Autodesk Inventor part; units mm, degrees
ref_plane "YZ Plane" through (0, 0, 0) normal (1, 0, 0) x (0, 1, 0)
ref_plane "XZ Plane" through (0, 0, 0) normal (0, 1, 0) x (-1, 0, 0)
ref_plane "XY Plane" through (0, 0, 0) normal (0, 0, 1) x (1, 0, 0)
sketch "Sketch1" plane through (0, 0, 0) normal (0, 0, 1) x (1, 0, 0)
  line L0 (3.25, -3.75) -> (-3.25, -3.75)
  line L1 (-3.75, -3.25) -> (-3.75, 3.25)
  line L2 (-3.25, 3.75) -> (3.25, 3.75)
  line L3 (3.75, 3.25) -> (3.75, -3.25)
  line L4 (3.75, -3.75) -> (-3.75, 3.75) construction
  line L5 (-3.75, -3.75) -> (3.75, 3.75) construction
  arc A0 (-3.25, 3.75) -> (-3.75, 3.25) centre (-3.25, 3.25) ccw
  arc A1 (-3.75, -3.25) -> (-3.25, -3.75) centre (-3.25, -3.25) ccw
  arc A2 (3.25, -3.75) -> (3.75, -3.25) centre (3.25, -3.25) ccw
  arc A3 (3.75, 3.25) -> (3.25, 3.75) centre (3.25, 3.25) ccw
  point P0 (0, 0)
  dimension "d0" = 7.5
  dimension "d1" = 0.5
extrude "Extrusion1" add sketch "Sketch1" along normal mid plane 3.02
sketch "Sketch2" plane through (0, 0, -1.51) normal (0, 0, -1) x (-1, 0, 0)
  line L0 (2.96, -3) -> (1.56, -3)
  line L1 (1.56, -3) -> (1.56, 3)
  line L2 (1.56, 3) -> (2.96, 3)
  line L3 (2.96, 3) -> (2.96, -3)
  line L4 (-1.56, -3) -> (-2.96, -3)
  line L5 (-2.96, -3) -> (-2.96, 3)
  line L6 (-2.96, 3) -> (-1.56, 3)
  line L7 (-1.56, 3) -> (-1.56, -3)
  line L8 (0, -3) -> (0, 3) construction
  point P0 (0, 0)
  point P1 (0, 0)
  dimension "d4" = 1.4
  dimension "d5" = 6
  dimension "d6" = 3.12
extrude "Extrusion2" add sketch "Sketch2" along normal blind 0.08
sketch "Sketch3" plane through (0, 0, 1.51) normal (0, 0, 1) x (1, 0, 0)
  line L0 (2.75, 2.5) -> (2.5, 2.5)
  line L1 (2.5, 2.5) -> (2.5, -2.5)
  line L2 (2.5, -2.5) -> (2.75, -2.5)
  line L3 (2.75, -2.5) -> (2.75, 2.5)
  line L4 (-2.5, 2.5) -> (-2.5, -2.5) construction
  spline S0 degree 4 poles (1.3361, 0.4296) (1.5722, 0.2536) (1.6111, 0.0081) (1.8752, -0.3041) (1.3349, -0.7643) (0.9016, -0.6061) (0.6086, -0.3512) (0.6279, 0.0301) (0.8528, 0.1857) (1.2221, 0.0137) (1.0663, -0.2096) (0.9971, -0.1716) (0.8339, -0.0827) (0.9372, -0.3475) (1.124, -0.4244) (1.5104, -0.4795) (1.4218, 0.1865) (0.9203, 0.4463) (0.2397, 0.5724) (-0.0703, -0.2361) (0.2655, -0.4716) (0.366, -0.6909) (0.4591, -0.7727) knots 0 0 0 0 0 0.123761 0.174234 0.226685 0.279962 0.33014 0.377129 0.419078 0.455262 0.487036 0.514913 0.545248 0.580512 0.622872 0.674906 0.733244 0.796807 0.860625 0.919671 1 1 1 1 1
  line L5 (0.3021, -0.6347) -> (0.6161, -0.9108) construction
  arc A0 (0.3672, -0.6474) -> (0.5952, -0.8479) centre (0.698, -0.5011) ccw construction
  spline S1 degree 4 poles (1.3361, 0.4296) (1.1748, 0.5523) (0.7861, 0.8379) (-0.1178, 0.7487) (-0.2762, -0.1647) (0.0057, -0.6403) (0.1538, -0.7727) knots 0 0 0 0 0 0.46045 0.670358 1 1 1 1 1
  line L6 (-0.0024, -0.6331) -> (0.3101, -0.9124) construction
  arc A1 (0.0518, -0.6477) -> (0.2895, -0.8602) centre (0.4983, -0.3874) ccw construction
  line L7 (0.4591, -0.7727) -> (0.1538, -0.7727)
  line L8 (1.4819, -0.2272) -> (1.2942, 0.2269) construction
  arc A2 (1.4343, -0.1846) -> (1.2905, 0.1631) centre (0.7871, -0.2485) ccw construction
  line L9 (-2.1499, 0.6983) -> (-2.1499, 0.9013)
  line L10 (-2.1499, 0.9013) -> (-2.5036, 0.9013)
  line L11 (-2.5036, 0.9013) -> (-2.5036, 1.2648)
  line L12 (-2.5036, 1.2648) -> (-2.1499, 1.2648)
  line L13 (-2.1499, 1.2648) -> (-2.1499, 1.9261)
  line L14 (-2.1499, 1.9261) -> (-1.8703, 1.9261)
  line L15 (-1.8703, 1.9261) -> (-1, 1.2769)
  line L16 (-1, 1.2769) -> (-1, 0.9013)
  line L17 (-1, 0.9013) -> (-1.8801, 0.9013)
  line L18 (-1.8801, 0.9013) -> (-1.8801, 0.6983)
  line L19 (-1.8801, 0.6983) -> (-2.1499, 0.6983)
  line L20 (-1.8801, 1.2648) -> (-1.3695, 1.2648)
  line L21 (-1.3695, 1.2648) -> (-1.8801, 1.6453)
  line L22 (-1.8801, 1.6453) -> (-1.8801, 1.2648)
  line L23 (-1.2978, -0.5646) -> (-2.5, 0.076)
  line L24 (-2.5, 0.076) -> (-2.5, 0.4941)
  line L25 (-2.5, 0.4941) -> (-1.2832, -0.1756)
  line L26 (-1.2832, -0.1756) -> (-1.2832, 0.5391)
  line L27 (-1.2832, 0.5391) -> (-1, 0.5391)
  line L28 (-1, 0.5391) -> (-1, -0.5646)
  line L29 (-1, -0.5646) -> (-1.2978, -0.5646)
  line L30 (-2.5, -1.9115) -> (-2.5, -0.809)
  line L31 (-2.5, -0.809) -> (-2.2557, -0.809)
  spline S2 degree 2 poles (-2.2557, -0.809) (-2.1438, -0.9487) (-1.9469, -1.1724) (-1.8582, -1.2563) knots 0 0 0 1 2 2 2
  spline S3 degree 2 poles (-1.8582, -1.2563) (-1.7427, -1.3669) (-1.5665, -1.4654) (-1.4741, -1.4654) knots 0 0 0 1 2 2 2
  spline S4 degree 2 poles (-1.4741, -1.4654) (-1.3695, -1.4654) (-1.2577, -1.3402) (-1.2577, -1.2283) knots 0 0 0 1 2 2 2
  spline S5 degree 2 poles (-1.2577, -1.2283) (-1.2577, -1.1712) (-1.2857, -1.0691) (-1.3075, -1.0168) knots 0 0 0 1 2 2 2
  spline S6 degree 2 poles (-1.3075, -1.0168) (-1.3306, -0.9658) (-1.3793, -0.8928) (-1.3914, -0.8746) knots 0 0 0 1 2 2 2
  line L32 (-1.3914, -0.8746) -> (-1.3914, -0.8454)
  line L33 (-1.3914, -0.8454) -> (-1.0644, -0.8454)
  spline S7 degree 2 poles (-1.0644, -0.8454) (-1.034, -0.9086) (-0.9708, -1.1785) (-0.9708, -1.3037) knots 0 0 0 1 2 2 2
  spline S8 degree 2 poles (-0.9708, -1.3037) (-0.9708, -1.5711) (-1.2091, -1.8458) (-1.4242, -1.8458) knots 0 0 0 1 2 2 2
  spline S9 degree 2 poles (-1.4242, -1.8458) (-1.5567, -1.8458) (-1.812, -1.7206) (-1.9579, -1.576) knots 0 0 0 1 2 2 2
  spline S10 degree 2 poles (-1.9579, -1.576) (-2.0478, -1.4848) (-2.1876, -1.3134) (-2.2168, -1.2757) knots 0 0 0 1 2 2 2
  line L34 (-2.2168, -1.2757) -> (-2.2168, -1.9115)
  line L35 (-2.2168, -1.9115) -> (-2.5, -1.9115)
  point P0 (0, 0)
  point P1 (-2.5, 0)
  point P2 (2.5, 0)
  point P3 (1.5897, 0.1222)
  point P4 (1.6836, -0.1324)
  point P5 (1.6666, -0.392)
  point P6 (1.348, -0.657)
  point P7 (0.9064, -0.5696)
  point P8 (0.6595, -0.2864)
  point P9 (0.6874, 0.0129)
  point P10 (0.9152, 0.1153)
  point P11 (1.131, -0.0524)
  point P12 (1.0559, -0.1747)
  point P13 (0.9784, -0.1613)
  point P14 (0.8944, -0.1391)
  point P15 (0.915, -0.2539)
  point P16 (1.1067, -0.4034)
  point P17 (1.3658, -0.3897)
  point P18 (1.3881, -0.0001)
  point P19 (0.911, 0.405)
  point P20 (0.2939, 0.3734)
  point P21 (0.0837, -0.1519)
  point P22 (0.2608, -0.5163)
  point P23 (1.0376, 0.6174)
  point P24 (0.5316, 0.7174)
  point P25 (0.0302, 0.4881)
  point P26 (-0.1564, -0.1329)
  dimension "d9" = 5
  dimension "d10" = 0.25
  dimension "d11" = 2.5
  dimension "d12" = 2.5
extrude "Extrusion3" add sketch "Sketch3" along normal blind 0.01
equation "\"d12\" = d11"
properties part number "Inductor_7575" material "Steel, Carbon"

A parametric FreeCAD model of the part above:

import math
import FreeCAD as App
import Part
import Sketcher
Q = App.Units.Quantity


def add_polygon(sketch, points):
    """Adds a closed chain of lines whose ends are joined by coincident constraints."""
    first, n = sketch.GeometryCount, len(points)
    for a, b in zip(points, points[1:] + points[:1]):
        sketch.addGeometry(Part.LineSegment(App.Vector(*a, 0), App.Vector(*b, 0)), False)
    for i in range(n):
        sketch.addConstraint(Sketcher.Constraint("Coincident", first + i, 2, first + (i + 1) % n, 1))

doc = App.newDocument("Part")
body = doc.addObject("PartDesign::Body", "Body")

sketch1 = body.newObject("Sketcher::SketchObject", "Sketch")
sketch1.AttachmentSupport = (doc.getObject("XY_Plane"), [""])
sketch1.MapMode = "FlatFace"
sketch1.addGeometry(Part.LineSegment(App.Vector(-3.2, -3.8, 0), App.Vector(3.2, -3.8, 0)), False)
sketch1.addGeometry(Part.ArcOfCircle(Part.Circle(App.Vector(3.2, -3.2, 0), App.Vector(0, 0, 1), 0.5), math.radians(-90), math.radians(0)), False)
sketch1.addGeometry(Part.LineSegment(App.Vector(3.8, -3.2, 0), App.Vector(3.8, 3.2, 0)), False)
sketch1.addGeometry(Part.ArcOfCircle(Part.Circle(App.Vector(3.2, 3.2, 0), App.Vector(0, 0, 1), 0.5), math.radians(0), math.radians(90)), False)
sketch1.addGeometry(Part.LineSegment(App.Vector(3.2, 3.8, 0), App.Vector(-3.2, 3.8, 0)), False)
sketch1.addGeometry(Part.ArcOfCircle(Part.Circle(App.Vector(-3.2, 3.2, 0), App.Vector(0, 0, 1), 0.5), math.radians(90), math.radians(180)), False)
sketch1.addGeometry(Part.LineSegment(App.Vector(-3.8, 3.2, 0), App.Vector(-3.8, -3.2, 0)), False)
sketch1.addGeometry(Part.ArcOfCircle(Part.Circle(App.Vector(-3.2, -3.2, 0), App.Vector(0, 0, 1), 0.5), math.radians(180), math.radians(270)), False)
sketch1.addConstraint(Sketcher.Constraint("Tangent", 0, 2, 1, 1))
sketch1.addConstraint(Sketcher.Constraint("Tangent", 1, 2, 2, 1))
sketch1.addConstraint(Sketcher.Constraint("Tangent", 2, 2, 3, 1))
sketch1.addConstraint(Sketcher.Constraint("Tangent", 3, 2, 4, 1))
sketch1.addConstraint(Sketcher.Constraint("Tangent", 4, 2, 5, 1))
sketch1.addConstraint(Sketcher.Constraint("Tangent", 5, 2, 6, 1))
sketch1.addConstraint(Sketcher.Constraint("Tangent", 6, 2, 7, 1))
sketch1.addConstraint(Sketcher.Constraint("Tangent", 7, 2, 0, 1))
sketch1.addConstraint(Sketcher.Constraint("Horizontal", 0))
sketch1.addConstraint(Sketcher.Constraint("Vertical", 2))
sketch1.addConstraint(Sketcher.Constraint("Horizontal", 4))
sketch1.addConstraint(Sketcher.Constraint("Vertical", 6))
sketch1.addConstraint(Sketcher.Constraint("Equal", 1, 3))
sketch1.addConstraint(Sketcher.Constraint("Equal", 3, 5))
sketch1.addConstraint(Sketcher.Constraint("Equal", 5, 7))
sketch1.addConstraint(Sketcher.Constraint("Symmetric", 1, 3, 5, 3, -1, 1))
sketch1.addConstraint(Sketcher.Constraint("Equal", 4, 2))
sketch1.addConstraint(Sketcher.Constraint("Radius", 1, Q("0.5 mm")))
sketch1.addConstraint(Sketcher.Constraint("DistanceX", 0, 1, 0, 2, Q("6.5 mm")))
pad1 = body.newObject("PartDesign::Pad", "Pad")
pad1.Profile = sketch1
pad1.Length = 3.02
pad1.Midplane = True

sketch2 = body.newObject("Sketcher::SketchObject", "Sketch001")
sketch2.AttachmentSupport = (doc.getObject("XY_Plane"), [""])
sketch2.MapMode = "FlatFace"
sketch2.AttachmentOffset = App.Placement(App.Vector(0, 0, -1.51), App.Rotation())
add_polygon(sketch2, [(-1.6, -3), (-3, -3), (-3, 3), (-1.6, 3)])
add_polygon(sketch2, [(3, -3), (1.6, -3), (1.6, 3), (3, 3)])
sketch2.addConstraint(Sketcher.Constraint("Horizontal", 0))
sketch2.addConstraint(Sketcher.Constraint("Vertical", 1))
sketch2.addConstraint(Sketcher.Constraint("Horizontal", 2))
sketch2.addConstraint(Sketcher.Constraint("Vertical", 3))
sketch2.addConstraint(Sketcher.Constraint("Horizontal", 4))
sketch2.addConstraint(Sketcher.Constraint("Vertical", 5))
sketch2.addConstraint(Sketcher.Constraint("Horizontal", 6))
sketch2.addConstraint(Sketcher.Constraint("Vertical", 7))
sketch2.addConstraint(Sketcher.Constraint("Symmetric", 2, 2, 4, 2, -1, 1))
sketch2.addConstraint(Sketcher.Constraint("Symmetric", 0, 2, 6, 2, -1, 1))
sketch2.addConstraint(Sketcher.Constraint("Horizontal", 3, 2, 4, 2))
sketch2.addConstraint(Sketcher.Constraint("DistanceY", 1, 1, 1, 2, Q("6 mm")))
sketch2.addConstraint(Sketcher.Constraint("DistanceX", 0, 2, 0, 1, Q("1.4 mm")))
sketch2.addConstraint(Sketcher.Constraint("DistanceX", 3, 2, 4, 2, Q("3.12 mm")))
pad2 = body.newObject("PartDesign::Pad", "Pad001")
pad2.Profile = sketch2
pad2.Length = 0.08
pad2.Reversed = True

sketch3 = body.newObject("Sketcher::SketchObject", "Sketch002")
sketch3.AttachmentSupport = (doc.getObject("XY_Plane"), [""])
sketch3.MapMode = "FlatFace"
sketch3.AttachmentOffset = App.Placement(App.Vector(0, 0, 1.51), App.Rotation())
add_polygon(sketch3, [(2.75, -2.5), (2.75, 2.5), (2.5, 2.5), (2.5, -2.5)])
sketch3.addGeometry(Part.BSplineCurve([App.Vector(1.3361, 0.4296, 0), App.Vector(1.5722, 0.2536, 0), App.Vector(1.6111, 0.0081, 0), App.Vector(1.8752, -0.3041, 0), App.Vector(1.3349, -0.7643, 0), App.Vector(0.9016, -0.6061, 0), App.Vector(0.6086, -0.3512, 0), App.Vector(0.6279, 0.0301, 0), App.Vector(0.8528, 0.1857, 0), App.Vector(1.2221, 0.0137, 0), App.Vector(1.0663, -0.2096, 0), App.Vector(0.9971, -0.1716, 0), App.Vector(0.8339, -0.0827, 0), App.Vector(0.9372, -0.3475, 0), App.Vector(1.124, -0.4244, 0), App.Vector(1.5104, -0.4795, 0), App.Vector(1.4218, 0.1865, 0), App.Vector(0.9203, 0.4463, 0), App.Vector(0.2397, 0.5724, 0), App.Vector(-0.0703, -0.2361, 0), App.Vector(0.2655, -0.4716, 0), App.Vector(0.366, -0.6909, 0), App.Vector(0.4591, -0.7727, 0)], [5, 1, 1, 1, 1, 1, 1, 1, 1, 1, 1, 1, 1, 1, 1, 1, 1, 1, 1, 5], [0, 0.123761, 0.174234, 0.226685, 0.279962, 0.33014, 0.377129, 0.419078, 0.455262, 0.487036, 0.514913, 0.545248, 0.580512, 0.622872, 0.674906, 0.733244, 0.796807, 0.860625, 0.919671, 1], False, 4, [1, 1, 1, 1, 1, 1, 1, 1, 1, 1, 1, 1, 1, 1, 1, 1, 1, 1, 1, 1, 1, 1, 1], False), False)
sketch3.addGeometry(Part.BSplineCurve([App.Vector(1.3361, 0.4296, 0), App.Vector(1.1748, 0.5523, 0), App.Vector(0.7861, 0.8379, 0), App.Vector(-0.1178, 0.7487, 0), App.Vector(-0.2762, -0.1647, 0), App.Vector(0.0057, -0.6403, 0), App.Vector(0.1538, -0.7727, 0)], [5, 1, 1, 5], [0, 0.46045, 0.670358, 1], False, 4, [1, 1, 1, 1, 1, 1, 1], False), False)
sketch3.addGeometry(Part.LineSegment(App.Vector(0.1538, -0.7727, 0), App.Vector(0.4591, -0.7727, 0)), False)
add_polygon(sketch3, [(-2.1499, 0.9013), (-2.1499, 0.6983), (-1.8801, 0.6983), (-1.8801, 0.9013), (-1, 0.9013), (-1, 1.2769), (-1.8703, 1.9261), (-2.1499, 1.9261), (-2.1499, 1.2648), (-2.5036, 1.2648), (-2.5036, 0.9013)])
add_polygon(sketch3, [(-1.3695, 1.2648), (-1.8801, 1.2648), (-1.8801, 1.6453)])
add_polygon(sketch3, [(-2.5, 0.076), (-1.2978, -0.5646), (-1, -0.5646), (-1, 0.5391), (-1.2832, 0.5391), (-1.2832, -0.1756), (-2.5, 0.4941)])
sketch3.addGeometry(Part.LineSegment(App.Vector(-2.5, -0.809, 0), App.Vector(-2.5, -1.9115, 0)), False)
sketch3.addGeometry(Part.LineSegment(App.Vector(-2.5, -1.9115, 0), App.Vector(-2.2168, -1.9115, 0)), False)
sketch3.addGeometry(Part.LineSegment(App.Vector(-2.2168, -1.9115, 0), App.Vector(-2.2168, -1.2757, 0)), False)
sketch3.addGeometry(Part.BSplineCurve([App.Vector(-1.9579, -1.576, 0), App.Vector(-2.0478, -1.4848, 0), App.Vector(-2.1876, -1.3134, 0), App.Vector(-2.2168, -1.2757, 0)], [3, 1, 3], [0, 1, 2], False, 2, [1, 1, 1, 1], False), False)
sketch3.addGeometry(Part.BSplineCurve([App.Vector(-1.4242, -1.8458, 0), App.Vector(-1.5567, -1.8458, 0), App.Vector(-1.812, -1.7206, 0), App.Vector(-1.9579, -1.576, 0)], [3, 1, 3], [0, 1, 2], False, 2, [1, 1, 1, 1], False), False)
sketch3.addGeometry(Part.BSplineCurve([App.Vector(-0.9708, -1.3037, 0), App.Vector(-0.9708, -1.5711, 0), App.Vector(-1.2091, -1.8458, 0), App.Vector(-1.4242, -1.8458, 0)], [3, 1, 3], [0, 1, 2], False, 2, [1, 1, 1, 1], False), False)
sketch3.addGeometry(Part.BSplineCurve([App.Vector(-1.0644, -0.8454, 0), App.Vector(-1.034, -0.9086, 0), App.Vector(-0.9708, -1.1785, 0), App.Vector(-0.9708, -1.3037, 0)], [3, 1, 3], [0, 1, 2], False, 2, [1, 1, 1, 1], False), False)
sketch3.addGeometry(Part.LineSegment(App.Vector(-1.0644, -0.8454, 0), App.Vector(-1.3914, -0.8454, 0)), False)
sketch3.addGeometry(Part.LineSegment(App.Vector(-1.3914, -0.8454, 0), App.Vector(-1.3914, -0.8746, 0)), False)
sketch3.addGeometry(Part.BSplineCurve([App.Vector(-1.3075, -1.0168, 0), App.Vector(-1.3306, -0.9658, 0), App.Vector(-1.3793, -0.8928, 0), App.Vector(-1.3914, -0.8746, 0)], [3, 1, 3], [0, 1, 2], False, 2, [1, 1, 1, 1], False), False)
sketch3.addGeometry(Part.BSplineCurve([App.Vector(-1.2577, -1.2283, 0), App.Vector(-1.2577, -1.1712, 0), App.Vector(-1.2857, -1.0691, 0), App.Vector(-1.3075, -1.0168, 0)], [3, 1, 3], [0, 1, 2], False, 2, [1, 1, 1, 1], False), False)
sketch3.addGeometry(Part.BSplineCurve([App.Vector(-1.4741, -1.4654, 0), App.Vector(-1.3695, -1.4654, 0), App.Vector(-1.2577, -1.3402, 0), App.Vector(-1.2577, -1.2283, 0)], [3, 1, 3], [0, 1, 2], False, 2, [1, 1, 1, 1], False), False)
sketch3.addGeometry(Part.BSplineCurve([App.Vector(-1.8582, -1.2563, 0), App.Vector(-1.7427, -1.3669, 0), App.Vector(-1.5665, -1.4654, 0), App.Vector(-1.4741, -1.4654, 0)], [3, 1, 3], [0, 1, 2], False, 2, [1, 1, 1, 1], False), False)
sketch3.addGeometry(Part.BSplineCurve([App.Vector(-2.2557, -0.809, 0), App.Vector(-2.1438, -0.9487, 0), App.Vector(-1.9469, -1.1724, 0), App.Vector(-1.8582, -1.2563, 0)], [3, 1, 3], [0, 1, 2], False, 2, [1, 1, 1, 1], False), False)
sketch3.addGeometry(Part.LineSegment(App.Vector(-2.2557, -0.809, 0), App.Vector(-2.5, -0.809, 0)), False)
sketch3.addConstraint(Sketcher.Constraint("Block", 4))
sketch3.addConstraint(Sketcher.Constraint("Block", 5))
sketch3.addConstraint(Sketcher.Constraint("Block", 31))
sketch3.addConstraint(Sketcher.Constraint("Block", 32))
sketch3.addConstraint(Sketcher.Constraint("Block", 33))
sketch3.addConstraint(Sketcher.Constraint("Block", 34))
sketch3.addConstraint(Sketcher.Constraint("Block", 37))
sketch3.addConstraint(Sketcher.Constraint("Block", 38))
sketch3.addConstraint(Sketcher.Constraint("Block", 39))
sketch3.addConstraint(Sketcher.Constraint("Block", 40))
sketch3.addConstraint(Sketcher.Constraint("Block", 41))
sketch3.addConstraint(Sketcher.Constraint("Coincident", 5, 2, 6, 1))
sketch3.addConstraint(Sketcher.Constraint("Coincident", 6, 2, 4, 2))
sketch3.addConstraint(Sketcher.Constraint("Coincident", 28, 2, 29, 1))
sketch3.addConstraint(Sketcher.Constraint("Coincident", 29, 2, 30, 1))
sketch3.addConstraint(Sketcher.Constraint("Coincident", 30, 2, 31, 2))
sketch3.addConstraint(Sketcher.Constraint("Coincident", 34, 1, 35, 1))
sketch3.addConstraint(Sketcher.Constraint("Coincident", 35, 2, 36, 1))
sketch3.addConstraint(Sketcher.Constraint("Coincident", 36, 2, 37, 2))
sketch3.addConstraint(Sketcher.Constraint("Coincident", 41, 1, 42, 1))
sketch3.addConstraint(Sketcher.Constraint("Coincident", 42, 2, 28, 1))
sketch3.addConstraint(Sketcher.Constraint("Vertical", 0))
sketch3.addConstraint(Sketcher.Constraint("Horizontal", 1))
sketch3.addConstraint(Sketcher.Constraint("Vertical", 2))
sketch3.addConstraint(Sketcher.Constraint("Horizontal", 3))
sketch3.addConstraint(Sketcher.Constraint("Vertical", 7))
sketch3.addConstraint(Sketcher.Constraint("Horizontal", 8))
sketch3.addConstraint(Sketcher.Constraint("Vertical", 9))
sketch3.addConstraint(Sketcher.Constraint("Horizontal", 10))
sketch3.addConstraint(Sketcher.Constraint("Vertical", 11))
sketch3.addConstraint(Sketcher.Constraint("Horizontal", 13))
sketch3.addConstraint(Sketcher.Constraint("Vertical", 14))
sketch3.addConstraint(Sketcher.Constraint("Horizontal", 15))
sketch3.addConstraint(Sketcher.Constraint("Vertical", 16))
sketch3.addConstraint(Sketcher.Constraint("Horizontal", 17))
sketch3.addConstraint(Sketcher.Constraint("Horizontal", 18))
sketch3.addConstraint(Sketcher.Constraint("Vertical", 19))
sketch3.addConstraint(Sketcher.Constraint("Horizontal", 22))
sketch3.addConstraint(Sketcher.Constraint("Vertical", 23))
sketch3.addConstraint(Sketcher.Constraint("Horizontal", 24))
sketch3.addConstraint(Sketcher.Constraint("Vertical", 25))
sketch3.addConstraint(Sketcher.Constraint("Vertical", 27))
sketch3.addConstraint(Sketcher.Constraint("Vertical", 28))
sketch3.addConstraint(Sketcher.Constraint("Horizontal", 29))
sketch3.addConstraint(Sketcher.Constraint("Vertical", 30))
sketch3.addConstraint(Sketcher.Constraint("Horizontal", 35))
sketch3.addConstraint(Sketcher.Constraint("Vertical", 36))
sketch3.addConstraint(Sketcher.Constraint("Horizontal", 42))
sketch3.addConstraint(Sketcher.Constraint("Parallel", 12, 20))
sketch3.addConstraint(Sketcher.Constraint("Horizontal", 10, 2, 16, 2))
sketch3.addConstraint(Sketcher.Constraint("Horizontal", 15, 2, 18, 2))
sketch3.addConstraint(Sketcher.Constraint("Vertical", 7, 2, 13, 2))
sketch3.addConstraint(Sketcher.Constraint("Vertical", 9, 2, 18, 2))
sketch3.addConstraint(Sketcher.Constraint("Vertical", 11, 2, 22, 2))
sketch3.addConstraint(Sketcher.Constraint("Vertical", 27, 2, 28, 2))
sketch3.addConstraint(Sketcher.Constraint("Equal", 24, 29))
sketch3.addConstraint(Sketcher.Constraint("DistanceY", 0, 1, 0, 2, Q("5 mm")))
sketch3.addConstraint(Sketcher.Constraint("DistanceX", 1, 2, 1, 1, Q("0.25 mm")))
sketch3.addConstraint(Sketcher.Constraint("DistanceY", -1, 1, 0, 2, Q("2.5 mm")))
sketch3.addConstraint(Sketcher.Constraint("DistanceX", -1, 1, 1, 2, Q("2.5 mm")))
sketch3.addConstraint(Sketcher.Constraint("DistanceX", 26, 2, -1, 1, Q("2.5 mm")))
sketch3.addConstraint(Sketcher.Constraint("DistanceX", 10, 2, -1, 1, Q("1 mm")))
sketch3.addConstraint(Sketcher.Constraint("DistanceX", 10, 1, 10, 2, Q("0.88 mm")))
sketch3.addConstraint(Sketcher.Constraint("Angle", 12, Q("143.279 deg")))
sketch3.addConstraint(Sketcher.Constraint("DistanceX", 7, 2, 0, 2, Q("4.9 mm")))
sketch3.addConstraint(Sketcher.Constraint("DistanceY", 7, 2, 7, 1, Q("0.203 mm")))
sketch3.addConstraint(Sketcher.Constraint("DistanceY", 27, 2, 27, 1, Q("0.418 mm")))
sketch3.addConstraint(Sketcher.Constraint("DistanceY", 36, 2, 21, 2, Q("0.31 mm")))
sketch3.addConstraint(Sketcher.Constraint("Distance", 26, Q("1.389 mm")))
sketch3.addConstraint(Sketcher.Constraint("DistanceX", 13, 2, 13, 1, Q("0.2796 mm")))
sketch3.addConstraint(Sketcher.Constraint("DistanceX", 15, 2, 15, 1, Q("0.3537 mm")))
sketch3.addConstraint(Sketcher.Constraint("DistanceX", 18, 2, 18, 1, Q("0.5106 mm")))
sketch3.addConstraint(Sketcher.Constraint("DistanceX", 22, 1, 22, 2, Q("0.2978 mm")))
sketch3.addConstraint(Sketcher.Constraint("DistanceY", 11, 1, 11, 2, Q("0.3756 mm")))
sketch3.addConstraint(Sketcher.Constraint("DistanceY", 14, 2, 14, 1, Q("0.6613 mm")))
sketch3.addConstraint(Sketcher.Constraint("DistanceY", 23, 1, 23, 2, Q("1.1037 mm")))
sketch3.addConstraint(Sketcher.Constraint("DistanceY", 25, 2, 25, 1, Q("0.7147 mm")))
sketch3.addConstraint(Sketcher.Constraint("DistanceY", 28, 2, 28, 1, Q("1.1025 mm")))
sketch3.addConstraint(Sketcher.Constraint("DistanceY", -1, 1, 11, 2, Q("1.277 mm")))
pad3 = body.newObject("PartDesign::Pad", "Pad002")
pad3.Profile = sketch3
pad3.Length = 0.01

doc.recompute()
